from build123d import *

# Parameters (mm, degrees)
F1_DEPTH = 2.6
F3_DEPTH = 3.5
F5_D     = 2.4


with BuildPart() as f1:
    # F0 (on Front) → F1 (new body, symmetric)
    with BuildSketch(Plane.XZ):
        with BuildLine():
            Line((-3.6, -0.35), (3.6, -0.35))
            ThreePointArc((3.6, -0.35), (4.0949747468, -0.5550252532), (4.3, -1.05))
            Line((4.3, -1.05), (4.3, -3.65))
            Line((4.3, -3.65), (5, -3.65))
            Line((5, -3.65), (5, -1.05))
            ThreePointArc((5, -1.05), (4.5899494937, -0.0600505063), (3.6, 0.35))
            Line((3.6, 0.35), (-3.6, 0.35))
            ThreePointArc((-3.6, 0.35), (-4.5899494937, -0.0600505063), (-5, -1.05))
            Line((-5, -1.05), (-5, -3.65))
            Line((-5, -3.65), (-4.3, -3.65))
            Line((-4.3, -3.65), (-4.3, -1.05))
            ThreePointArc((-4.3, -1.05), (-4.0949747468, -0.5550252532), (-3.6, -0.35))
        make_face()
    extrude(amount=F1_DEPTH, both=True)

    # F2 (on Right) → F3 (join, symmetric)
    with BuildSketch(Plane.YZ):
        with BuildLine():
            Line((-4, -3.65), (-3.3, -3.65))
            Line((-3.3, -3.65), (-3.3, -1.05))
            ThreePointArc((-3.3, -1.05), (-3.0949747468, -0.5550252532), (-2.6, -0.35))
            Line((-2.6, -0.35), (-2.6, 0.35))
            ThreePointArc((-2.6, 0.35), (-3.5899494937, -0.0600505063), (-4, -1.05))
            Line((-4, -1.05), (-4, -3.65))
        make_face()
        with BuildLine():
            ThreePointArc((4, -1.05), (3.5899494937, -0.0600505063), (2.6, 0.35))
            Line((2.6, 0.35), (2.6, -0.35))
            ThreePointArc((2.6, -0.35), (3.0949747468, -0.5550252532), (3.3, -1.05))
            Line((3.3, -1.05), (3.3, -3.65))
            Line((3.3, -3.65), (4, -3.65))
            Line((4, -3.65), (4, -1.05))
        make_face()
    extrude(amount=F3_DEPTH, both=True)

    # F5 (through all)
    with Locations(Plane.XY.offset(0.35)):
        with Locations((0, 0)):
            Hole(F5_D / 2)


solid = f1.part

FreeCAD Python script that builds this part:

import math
import FreeCAD as App
import Part
import Sketcher

V = App.Vector

doc = App.newDocument("Part")
params = doc.addObject("Spreadsheet::Sheet", "Params")
for row, (alias, value) in enumerate([
    ("sketch1_radius", "0.7 mm"),
    ("sketch1_radius2", "1.4 mm"),
    ("sketch1_width", "7.2 mm"),
    ("sketch1_height", "2.6 mm"),
    ("pad1_length", "5.2 mm"),
    ("sketch2_radius", "0.7 mm"),
    ("sketch2_radius2", "1.4 mm"),
    ("sketch2_height", "2.6 mm"),
    ("pad2_length", "7 mm"),
    ("sketch3_diameter", "2.4 mm"),
    ("hole_diameter", "2.4 mm"),
], start=1):
    params.set(f"A{row}", alias)
    params.set(f"B{row}", "=" + value)
    params.setAlias(f"B{row}", alias)

body = doc.addObject("PartDesign::Body", "Body")

# Sketch on XZ plane
sketch1 = doc.addObject("Sketcher::SketchObject", "Sketch")
body.addObject(sketch1)
sketch1.AttachmentSupport = (doc.XZ_Plane, [""])
sketch1.MapMode = "FlatFace"
sketch1.addGeometry([
    Part.LineSegment(V(-3.6, -0.3, 0), V(3.6, -0.3, 0)),  # 0
    Part.ArcOfCircle(Part.Circle(V(3.6, -1.1, 0), V(0, 0, 1), 0.7), math.radians(0), math.radians(90)),  # 1
    Part.LineSegment(V(4.3, -1.1, 0), V(4.3, -3.6, 0)),  # 2
    Part.LineSegment(V(4.3, -3.6, 0), V(5, -3.6, 0)),  # 3
    Part.LineSegment(V(5, -3.6, 0), V(5, -1.1, 0)),  # 4
    Part.ArcOfCircle(Part.Circle(V(3.6, -1.1, 0), V(0, 0, 1), 1.4), math.radians(0), math.radians(90)),  # 5
    Part.LineSegment(V(3.6, 0.3, 0), V(-3.6, 0.3, 0)),  # 6
    Part.ArcOfCircle(Part.Circle(V(-3.6, -1.1, 0), V(0, 0, 1), 1.4), math.radians(90), math.radians(180)),  # 7
    Part.LineSegment(V(-5, -1.1, 0), V(-5, -3.6, 0)),  # 8
    Part.LineSegment(V(-5, -3.6, 0), V(-4.3, -3.6, 0)),  # 9
    Part.LineSegment(V(-4.3, -3.6, 0), V(-4.3, -1.1, 0)),  # 10
    Part.ArcOfCircle(Part.Circle(V(-3.6, -1.1, 0), V(0, 0, 1), 0.7), math.radians(90), math.radians(180)),  # 11
], False)
sketch1.addConstraint([
    Sketcher.Constraint("Tangent", 0, 2, 1, 2),
    Sketcher.Constraint("Tangent", 1, 1, 2, 1),
    Sketcher.Constraint("Coincident", 2, 2, 3, 1),
    Sketcher.Constraint("Coincident", 3, 2, 4, 1),
    Sketcher.Constraint("Tangent", 4, 2, 5, 1),
    Sketcher.Constraint("Tangent", 5, 2, 6, 1),
    Sketcher.Constraint("Tangent", 6, 2, 7, 1),
    Sketcher.Constraint("Tangent", 7, 2, 8, 1),
    Sketcher.Constraint("Coincident", 8, 2, 9, 1),
    Sketcher.Constraint("Coincident", 9, 2, 10, 1),
    Sketcher.Constraint("Tangent", 10, 2, 11, 2),
    Sketcher.Constraint("Tangent", 11, 1, 0, 1),
    Sketcher.Constraint("Horizontal", 0),
    Sketcher.Constraint("Vertical", 2),
    Sketcher.Constraint("Horizontal", 3),
    Sketcher.Constraint("Vertical", 4),
    Sketcher.Constraint("Horizontal", 6),
    Sketcher.Constraint("Vertical", 8),
    Sketcher.Constraint("Horizontal", 9),
    Sketcher.Constraint("Vertical", 10),
    Sketcher.Constraint("Coincident", 5, 3, 1, 3),
    Sketcher.Constraint("Coincident", 11, 3, 7, 3),
    Sketcher.Constraint("Equal", 5, 7),
    Sketcher.Constraint("Symmetric", 0, 2, 6, 2, -1, 1),
    Sketcher.Constraint("Horizontal", 3, 2, 8, 2),
    Sketcher.Constraint("Radius", 1, 0.7),
    Sketcher.Constraint("Radius", 5, 1.4),
    Sketcher.Constraint("DistanceX", 0, 1, 0, 2, 7.2),
    Sketcher.Constraint("DistanceY", 2, 2, 2, 1, 2.6),
])
sketch1.setExpression("Constraints[25]", "Params.sketch1_radius")
sketch1.setExpression("Constraints[26]", "Params.sketch1_radius2")
sketch1.setExpression("Constraints[27]", "Params.sketch1_width")
sketch1.setExpression("Constraints[28]", "Params.sketch1_height")
pad1 = doc.addObject("PartDesign::Pad", "Pad")
body.addObject(pad1)
pad1.Profile = sketch1
pad1.setExpression("Length", "Params.pad1_length")
pad1.Midplane = True

# Sketch on YZ plane
sketch2 = doc.addObject("Sketcher::SketchObject", "Sketch001")
body.addObject(sketch2)
sketch2.AttachmentSupport = (doc.YZ_Plane, [""])
sketch2.MapMode = "FlatFace"
sketch2.addGeometry([
    Part.LineSegment(V(-4, -3.6, 0), V(-3.3, -3.6, 0)),  # 0
    Part.LineSegment(V(-3.3, -3.6, 0), V(-3.3, -1.1, 0)),  # 1
    Part.ArcOfCircle(Part.Circle(V(-2.6, -1.1, 0), V(0, 0, 1), 0.7), math.radians(90), math.radians(180)),  # 2
    Part.LineSegment(V(-2.6, -0.3, 0), V(-2.6, 0.3, 0)),  # 3
    Part.ArcOfCircle(Part.Circle(V(-2.6, -1.1, 0), V(0, 0, 1), 1.4), math.radians(90), math.radians(180)),  # 4
    Part.LineSegment(V(-4, -1.1, 0), V(-4, -3.6, 0)),  # 5
    Part.ArcOfCircle(Part.Circle(V(2.6, -1.1, 0), V(0, 0, 1), 1.4), math.radians(0), math.radians(90)),  # 6
    Part.LineSegment(V(2.6, 0.3, 0), V(2.6, -0.3, 0)),  # 7
    Part.ArcOfCircle(Part.Circle(V(2.6, -1.1, 0), V(0, 0, 1), 0.7), math.radians(0), math.radians(90)),  # 8
    Part.LineSegment(V(3.3, -1.1, 0), V(3.3, -3.6, 0)),  # 9
    Part.LineSegment(V(3.3, -3.6, 0), V(4, -3.6, 0)),  # 10
    Part.LineSegment(V(4, -3.6, 0), V(4, -1.1, 0)),  # 11
], False)
sketch2.addConstraint([
    Sketcher.Constraint("Coincident", 0, 2, 1, 1),
    Sketcher.Constraint("Tangent", 1, 2, 2, 2),
    Sketcher.Constraint("Coincident", 2, 1, 3, 1),
    Sketcher.Constraint("Coincident", 3, 2, 4, 1),
    Sketcher.Constraint("Tangent", 4, 2, 5, 1),
    Sketcher.Constraint("Coincident", 5, 2, 0, 1),
    Sketcher.Constraint("Coincident", 6, 2, 7, 1),
    Sketcher.Constraint("Coincident", 7, 2, 8, 2),
    Sketcher.Constraint("Tangent", 8, 1, 9, 1),
    Sketcher.Constraint("Coincident", 9, 2, 10, 1),
    Sketcher.Constraint("Coincident", 10, 2, 11, 1),
    Sketcher.Constraint("Tangent", 11, 2, 6, 1),
    Sketcher.Constraint("Horizontal", 0),
    Sketcher.Constraint("Vertical", 1),
    Sketcher.Constraint("Vertical", 3),
    Sketcher.Constraint("Vertical", 5),
    Sketcher.Constraint("Vertical", 7),
    Sketcher.Constraint("Vertical", 9),
    Sketcher.Constraint("Horizontal", 10),
    Sketcher.Constraint("Vertical", 11),
    Sketcher.Constraint("Coincident", 4, 3, 2, 3),
    Sketcher.Constraint("Coincident", 8, 3, 6, 3),
    Sketcher.Constraint("Equal", 4, 6),
    Sketcher.Constraint("Equal", 2, 8),
    Sketcher.Constraint("Symmetric", 2, 1, 6, 2, -1, 1),
    Sketcher.Constraint("Symmetric", 2, 3, 6, 3, -2),
    Sketcher.Constraint("Horizontal", 5, 2, 9, 2),
    Sketcher.Constraint("Vertical", 4, 3, 2, 1),
    Sketcher.Constraint("Radius", 2, 0.7),
    Sketcher.Constraint("Radius", 4, 1.4),
    Sketcher.Constraint("DistanceY", 1, 1, 1, 2, 2.6),
    Sketcher.Constraint("DistanceX", 4, 2, -1, 1, 4.0),
])
sketch2.setExpression("Constraints[28]", "Params.sketch2_radius")
sketch2.setExpression("Constraints[29]", "Params.sketch2_radius2")
sketch2.setExpression("Constraints[30]", "Params.sketch2_height")
pad2 = doc.addObject("PartDesign::Pad", "Pad001")
body.addObject(pad2)
pad2.Profile = sketch2
pad2.setExpression("Length", "Params.pad2_length")
pad2.Midplane = True

# Sketch on XY plane
sketch3 = doc.addObject("Sketcher::SketchObject", "Sketch002")
body.addObject(sketch3)
sketch3.AttachmentSupport = (doc.XY_Plane, [""])
sketch3.MapMode = "FlatFace"
sketch3.AttachmentOffset = App.Placement(V(0, 0, 0.35), App.Rotation())
sketch3.addGeometry(Part.Circle(V(0, 0, 0), V(0, 0, 1), 1.2), False)
sketch3.addConstraint([
    Sketcher.Constraint("Coincident", 0, 3, -1, 1),
    Sketcher.Constraint("Diameter", 0, 2.4),
])
sketch3.setExpression("Constraints[1]", "Params.sketch3_diameter")
doc.recompute()
hole = doc.addObject("PartDesign::Hole", "Hole")
body.addObject(hole)
hole.Profile = sketch3
hole.ThreadType = "None"
hole.setExpression("Diameter", "Params.hole_diameter")
hole.DepthType = "ThroughAll"

doc.recompute()
